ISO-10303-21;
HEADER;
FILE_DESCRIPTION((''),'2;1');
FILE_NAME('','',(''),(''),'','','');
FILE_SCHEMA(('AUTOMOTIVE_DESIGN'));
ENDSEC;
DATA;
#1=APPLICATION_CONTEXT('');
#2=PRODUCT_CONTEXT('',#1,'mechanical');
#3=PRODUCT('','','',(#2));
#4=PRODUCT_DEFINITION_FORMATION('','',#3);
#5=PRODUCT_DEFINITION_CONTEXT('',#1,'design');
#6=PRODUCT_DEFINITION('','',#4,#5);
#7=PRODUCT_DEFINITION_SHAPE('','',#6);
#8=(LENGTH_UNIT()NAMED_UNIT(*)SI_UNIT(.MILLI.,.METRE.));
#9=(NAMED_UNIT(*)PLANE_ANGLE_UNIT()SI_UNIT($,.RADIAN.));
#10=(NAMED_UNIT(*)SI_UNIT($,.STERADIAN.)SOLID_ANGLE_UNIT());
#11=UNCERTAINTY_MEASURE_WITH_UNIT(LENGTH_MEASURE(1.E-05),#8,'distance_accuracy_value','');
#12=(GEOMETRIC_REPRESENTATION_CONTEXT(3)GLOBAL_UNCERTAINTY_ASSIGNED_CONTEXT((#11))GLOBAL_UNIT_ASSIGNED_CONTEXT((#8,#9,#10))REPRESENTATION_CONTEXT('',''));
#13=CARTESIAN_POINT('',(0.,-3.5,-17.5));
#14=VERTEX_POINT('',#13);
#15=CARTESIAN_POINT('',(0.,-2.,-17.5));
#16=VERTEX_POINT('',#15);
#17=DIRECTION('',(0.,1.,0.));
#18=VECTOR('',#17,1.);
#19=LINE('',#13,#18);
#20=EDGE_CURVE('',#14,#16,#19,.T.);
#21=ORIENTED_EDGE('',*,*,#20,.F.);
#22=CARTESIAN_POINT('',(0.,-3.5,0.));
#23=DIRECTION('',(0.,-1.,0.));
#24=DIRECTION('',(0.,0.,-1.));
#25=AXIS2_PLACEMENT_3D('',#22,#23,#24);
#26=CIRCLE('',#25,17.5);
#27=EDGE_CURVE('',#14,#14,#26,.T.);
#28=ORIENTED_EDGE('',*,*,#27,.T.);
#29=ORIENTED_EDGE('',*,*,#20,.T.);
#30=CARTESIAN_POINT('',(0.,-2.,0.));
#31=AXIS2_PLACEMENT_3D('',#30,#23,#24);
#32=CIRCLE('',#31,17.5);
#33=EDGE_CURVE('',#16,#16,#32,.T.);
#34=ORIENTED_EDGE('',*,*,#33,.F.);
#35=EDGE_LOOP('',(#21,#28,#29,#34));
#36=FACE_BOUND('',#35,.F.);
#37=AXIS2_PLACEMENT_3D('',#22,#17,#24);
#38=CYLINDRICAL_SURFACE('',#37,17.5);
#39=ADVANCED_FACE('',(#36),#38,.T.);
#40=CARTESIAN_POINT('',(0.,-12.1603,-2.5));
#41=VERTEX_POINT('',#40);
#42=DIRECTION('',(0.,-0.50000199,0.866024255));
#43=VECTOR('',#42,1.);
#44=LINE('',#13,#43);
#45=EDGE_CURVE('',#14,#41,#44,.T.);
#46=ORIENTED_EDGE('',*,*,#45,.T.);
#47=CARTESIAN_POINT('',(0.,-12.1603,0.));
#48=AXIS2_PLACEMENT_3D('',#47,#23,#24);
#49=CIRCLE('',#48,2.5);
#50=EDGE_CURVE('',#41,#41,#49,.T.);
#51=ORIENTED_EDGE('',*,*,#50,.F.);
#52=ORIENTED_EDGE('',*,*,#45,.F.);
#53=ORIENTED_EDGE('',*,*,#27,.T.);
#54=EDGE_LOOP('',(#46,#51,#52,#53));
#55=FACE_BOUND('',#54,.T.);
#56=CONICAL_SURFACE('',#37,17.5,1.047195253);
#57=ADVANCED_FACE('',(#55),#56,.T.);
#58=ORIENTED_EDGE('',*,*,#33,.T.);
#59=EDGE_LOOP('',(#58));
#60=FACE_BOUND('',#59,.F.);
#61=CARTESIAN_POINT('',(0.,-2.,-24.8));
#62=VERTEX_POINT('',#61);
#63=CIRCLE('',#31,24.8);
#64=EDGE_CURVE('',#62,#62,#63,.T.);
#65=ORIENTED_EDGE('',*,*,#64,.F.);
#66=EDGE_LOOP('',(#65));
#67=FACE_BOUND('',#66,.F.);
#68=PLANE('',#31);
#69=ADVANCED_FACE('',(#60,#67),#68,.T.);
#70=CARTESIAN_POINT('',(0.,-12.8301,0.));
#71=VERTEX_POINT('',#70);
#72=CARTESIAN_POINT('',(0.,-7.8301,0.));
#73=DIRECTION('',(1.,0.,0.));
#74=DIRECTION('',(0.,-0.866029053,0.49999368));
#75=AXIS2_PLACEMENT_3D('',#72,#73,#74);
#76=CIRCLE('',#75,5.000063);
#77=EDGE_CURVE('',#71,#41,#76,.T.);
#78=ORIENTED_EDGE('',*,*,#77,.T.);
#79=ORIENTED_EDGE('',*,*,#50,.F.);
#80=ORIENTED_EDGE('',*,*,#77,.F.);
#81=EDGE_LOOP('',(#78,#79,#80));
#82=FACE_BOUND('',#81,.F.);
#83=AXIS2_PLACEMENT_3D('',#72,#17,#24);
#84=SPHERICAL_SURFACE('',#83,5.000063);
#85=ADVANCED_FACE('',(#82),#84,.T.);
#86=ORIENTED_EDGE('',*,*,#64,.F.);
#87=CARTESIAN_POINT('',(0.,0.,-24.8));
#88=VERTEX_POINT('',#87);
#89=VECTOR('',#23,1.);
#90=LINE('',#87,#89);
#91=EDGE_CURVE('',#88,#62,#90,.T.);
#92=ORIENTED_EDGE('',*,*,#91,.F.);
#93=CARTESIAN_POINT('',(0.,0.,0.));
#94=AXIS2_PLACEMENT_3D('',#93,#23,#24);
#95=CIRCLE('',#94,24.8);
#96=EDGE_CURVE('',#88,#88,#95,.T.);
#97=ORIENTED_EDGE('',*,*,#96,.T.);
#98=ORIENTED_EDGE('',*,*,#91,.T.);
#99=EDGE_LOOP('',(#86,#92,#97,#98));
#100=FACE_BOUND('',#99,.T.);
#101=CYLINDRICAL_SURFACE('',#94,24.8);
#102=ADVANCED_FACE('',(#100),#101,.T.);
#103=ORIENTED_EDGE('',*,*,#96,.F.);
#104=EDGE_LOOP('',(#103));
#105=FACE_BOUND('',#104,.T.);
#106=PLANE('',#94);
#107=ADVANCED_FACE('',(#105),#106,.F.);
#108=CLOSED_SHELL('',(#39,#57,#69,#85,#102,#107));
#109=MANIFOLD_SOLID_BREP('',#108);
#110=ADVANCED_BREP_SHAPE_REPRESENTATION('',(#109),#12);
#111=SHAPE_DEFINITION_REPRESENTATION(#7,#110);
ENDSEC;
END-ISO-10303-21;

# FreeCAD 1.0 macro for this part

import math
import FreeCAD as App
import Part
import Sketcher
Q = App.Units.Quantity

doc = App.newDocument("Part")
params = doc.addObject("Spreadsheet::Sheet", "Params")
for row, (alias, value) in enumerate([
    ("sketch1_radius", "5 mm"),
    ("sketch1_width", "2 mm"),
    ("sketch1_width2", "1.5 mm"),
    ("sketch1_height", "24.8 mm"),
    ("sketch1_height2", "7.3 mm"),
    ("revolution_angle", "360 deg"),
], start=1):
    params.set(f"A{row}", alias)
    params.set(f"B{row}", "=" + value)
    params.setAlias(f"B{row}", alias)

body = doc.addObject("PartDesign::Body", "Body")

# Sketch on YZ plane
sketch1 = body.newObject("Sketcher::SketchObject", "Sketch")
sketch1.AttachmentSupport = (doc.getObject("YZ_Plane"), [""])
sketch1.MapMode = "FlatFace"
sketch1.addGeometry(Part.LineSegment(App.Vector(0, -24.8, 0), App.Vector(0, 0, 0)), False)
sketch1.addGeometry(Part.LineSegment(App.Vector(0, 0, 0), App.Vector(-12.8, 0, 0)), False)
sketch1.addGeometry(Part.ArcOfCircle(Part.Circle(App.Vector(-7.8, 0, 0), App.Vector(0, 0, 1), 5), math.radians(180), math.radians(210)), False)
sketch1.addGeometry(Part.LineSegment(App.Vector(-12.2, -2.5, 0), App.Vector(-3.5, -17.5, 0)), False)
sketch1.addGeometry(Part.LineSegment(App.Vector(-3.5, -17.5, 0), App.Vector(-2, -17.5, 0)), False)
sketch1.addGeometry(Part.LineSegment(App.Vector(-2, -17.5, 0), App.Vector(-2, -24.8, 0)), False)
sketch1.addGeometry(Part.LineSegment(App.Vector(-2, -24.8, 0), App.Vector(0, -24.8, 0)), False)
sketch1.addConstraint(Sketcher.Constraint("Coincident", 0, 2, 1, 1))
sketch1.addConstraint(Sketcher.Constraint("Coincident", 1, 2, 2, 1))
sketch1.addConstraint(Sketcher.Constraint("Tangent", 2, 2, 3, 1))
sketch1.addConstraint(Sketcher.Constraint("Coincident", 3, 2, 4, 1))
sketch1.addConstraint(Sketcher.Constraint("Coincident", 4, 2, 5, 1))
sketch1.addConstraint(Sketcher.Constraint("Coincident", 5, 2, 6, 1))
sketch1.addConstraint(Sketcher.Constraint("Coincident", 6, 2, 0, 1))
sketch1.addConstraint(Sketcher.Constraint("Vertical", 0))
sketch1.addConstraint(Sketcher.Constraint("Horizontal", 1))
sketch1.addConstraint(Sketcher.Constraint("Horizontal", 4))
sketch1.addConstraint(Sketcher.Constraint("Vertical", 5))
sketch1.addConstraint(Sketcher.Constraint("Horizontal", 6))
sketch1.addConstraint(Sketcher.Constraint("Coincident", 0, 2, -1, 1))
sketch1.addConstraint(Sketcher.Constraint("PointOnObject", 2, 3, -1))
sketch1.addConstraint(Sketcher.Constraint("Radius", 2, 5.0))
sketch1.addConstraint(Sketcher.Constraint("DistanceX", 6, 1, 6, 2, 2.0))
sketch1.addConstraint(Sketcher.Constraint("DistanceX", 4, 1, 4, 2, 1.5))
sketch1.addConstraint(Sketcher.Constraint("Angle", 3, Q("-59.9999 deg")))
sketch1.addConstraint(Sketcher.Constraint("DistanceY", 0, 1, 0, 2, 24.8))
sketch1.addConstraint(Sketcher.Constraint("DistanceY", 5, 2, 5, 1, 7.3))
sketch1.setExpression("Constraints[14]", "Params.sketch1_radius")
sketch1.setExpression("Constraints[15]", "Params.sketch1_width")
sketch1.setExpression("Constraints[16]", "Params.sketch1_width2")
sketch1.setExpression("Constraints[18]", "Params.sketch1_height")
sketch1.setExpression("Constraints[19]", "Params.sketch1_height2")
revolution = body.newObject("PartDesign::Revolution", "Revolution")
revolution.Profile = sketch1
revolution.ReferenceAxis = (sketch1, ["H_Axis"])
revolution.setExpression("Angle", "Params.revolution_angle")

doc.recompute()
